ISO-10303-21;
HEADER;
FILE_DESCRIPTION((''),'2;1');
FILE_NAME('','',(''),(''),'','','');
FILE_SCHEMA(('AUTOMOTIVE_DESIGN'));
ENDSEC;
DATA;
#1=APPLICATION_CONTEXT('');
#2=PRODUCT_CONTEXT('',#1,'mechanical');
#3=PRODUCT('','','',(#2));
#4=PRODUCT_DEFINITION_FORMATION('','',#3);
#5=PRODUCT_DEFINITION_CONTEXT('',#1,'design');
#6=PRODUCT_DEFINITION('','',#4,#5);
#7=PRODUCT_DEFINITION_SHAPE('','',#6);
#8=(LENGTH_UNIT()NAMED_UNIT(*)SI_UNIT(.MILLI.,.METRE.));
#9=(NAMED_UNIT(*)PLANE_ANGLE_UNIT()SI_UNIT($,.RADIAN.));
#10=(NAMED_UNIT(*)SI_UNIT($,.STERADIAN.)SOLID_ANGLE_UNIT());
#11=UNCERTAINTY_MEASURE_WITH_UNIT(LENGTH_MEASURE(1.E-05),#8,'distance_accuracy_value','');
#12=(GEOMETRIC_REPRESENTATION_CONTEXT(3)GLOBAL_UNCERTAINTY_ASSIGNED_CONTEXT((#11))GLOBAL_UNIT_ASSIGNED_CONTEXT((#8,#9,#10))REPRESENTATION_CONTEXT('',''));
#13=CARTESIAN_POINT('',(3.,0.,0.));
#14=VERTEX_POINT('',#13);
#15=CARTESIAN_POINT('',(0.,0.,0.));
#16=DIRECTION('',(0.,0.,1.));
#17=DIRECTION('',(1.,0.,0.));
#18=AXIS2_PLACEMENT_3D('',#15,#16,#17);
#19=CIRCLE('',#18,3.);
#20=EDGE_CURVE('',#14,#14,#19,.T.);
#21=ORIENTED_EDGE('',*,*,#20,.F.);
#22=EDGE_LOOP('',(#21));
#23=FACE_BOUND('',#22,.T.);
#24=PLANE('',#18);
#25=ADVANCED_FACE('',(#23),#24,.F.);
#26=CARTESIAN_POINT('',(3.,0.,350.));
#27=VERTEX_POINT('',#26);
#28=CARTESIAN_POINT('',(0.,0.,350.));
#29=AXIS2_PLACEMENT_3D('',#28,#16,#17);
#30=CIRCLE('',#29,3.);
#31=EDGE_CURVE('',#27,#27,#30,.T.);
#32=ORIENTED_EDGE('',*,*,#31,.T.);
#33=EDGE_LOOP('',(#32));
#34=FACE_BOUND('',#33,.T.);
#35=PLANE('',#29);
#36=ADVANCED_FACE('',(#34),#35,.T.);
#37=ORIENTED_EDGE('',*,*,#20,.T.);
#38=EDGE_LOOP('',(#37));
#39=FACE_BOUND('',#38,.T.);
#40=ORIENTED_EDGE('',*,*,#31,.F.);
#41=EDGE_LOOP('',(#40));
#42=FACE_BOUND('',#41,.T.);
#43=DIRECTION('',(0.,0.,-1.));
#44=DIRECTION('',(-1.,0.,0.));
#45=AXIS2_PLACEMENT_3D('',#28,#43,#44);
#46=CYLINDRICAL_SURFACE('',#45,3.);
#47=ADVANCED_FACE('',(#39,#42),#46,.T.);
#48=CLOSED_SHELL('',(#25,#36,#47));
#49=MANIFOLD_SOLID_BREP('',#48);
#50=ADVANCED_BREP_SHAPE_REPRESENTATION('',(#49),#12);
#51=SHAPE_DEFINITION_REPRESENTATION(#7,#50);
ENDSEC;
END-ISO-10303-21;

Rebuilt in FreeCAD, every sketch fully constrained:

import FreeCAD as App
import Part
import Sketcher

doc = App.newDocument("Part")
body = doc.addObject("PartDesign::Body", "Body")

# Sketch on XY plane
sketch1 = doc.addObject("Sketcher::SketchObject", "Sketch")
body.addObject(sketch1)
sketch1.AttachmentSupport = (doc.XY_Plane, [""])
sketch1.MapMode = "FlatFace"
sketch1.addGeometry(Part.Circle(App.Vector(0, 0, 0), App.Vector(0, 0, 1), 3), False)
sketch1.addConstraint([
    Sketcher.Constraint("Coincident", 0, 3, -1, 1),
    Sketcher.Constraint("Diameter", 0, 6.0),
])
pad1 = doc.addObject("PartDesign::Pad", "Pad")
body.addObject(pad1)
pad1.Profile = sketch1
pad1.Length = 350

doc.recompute()
